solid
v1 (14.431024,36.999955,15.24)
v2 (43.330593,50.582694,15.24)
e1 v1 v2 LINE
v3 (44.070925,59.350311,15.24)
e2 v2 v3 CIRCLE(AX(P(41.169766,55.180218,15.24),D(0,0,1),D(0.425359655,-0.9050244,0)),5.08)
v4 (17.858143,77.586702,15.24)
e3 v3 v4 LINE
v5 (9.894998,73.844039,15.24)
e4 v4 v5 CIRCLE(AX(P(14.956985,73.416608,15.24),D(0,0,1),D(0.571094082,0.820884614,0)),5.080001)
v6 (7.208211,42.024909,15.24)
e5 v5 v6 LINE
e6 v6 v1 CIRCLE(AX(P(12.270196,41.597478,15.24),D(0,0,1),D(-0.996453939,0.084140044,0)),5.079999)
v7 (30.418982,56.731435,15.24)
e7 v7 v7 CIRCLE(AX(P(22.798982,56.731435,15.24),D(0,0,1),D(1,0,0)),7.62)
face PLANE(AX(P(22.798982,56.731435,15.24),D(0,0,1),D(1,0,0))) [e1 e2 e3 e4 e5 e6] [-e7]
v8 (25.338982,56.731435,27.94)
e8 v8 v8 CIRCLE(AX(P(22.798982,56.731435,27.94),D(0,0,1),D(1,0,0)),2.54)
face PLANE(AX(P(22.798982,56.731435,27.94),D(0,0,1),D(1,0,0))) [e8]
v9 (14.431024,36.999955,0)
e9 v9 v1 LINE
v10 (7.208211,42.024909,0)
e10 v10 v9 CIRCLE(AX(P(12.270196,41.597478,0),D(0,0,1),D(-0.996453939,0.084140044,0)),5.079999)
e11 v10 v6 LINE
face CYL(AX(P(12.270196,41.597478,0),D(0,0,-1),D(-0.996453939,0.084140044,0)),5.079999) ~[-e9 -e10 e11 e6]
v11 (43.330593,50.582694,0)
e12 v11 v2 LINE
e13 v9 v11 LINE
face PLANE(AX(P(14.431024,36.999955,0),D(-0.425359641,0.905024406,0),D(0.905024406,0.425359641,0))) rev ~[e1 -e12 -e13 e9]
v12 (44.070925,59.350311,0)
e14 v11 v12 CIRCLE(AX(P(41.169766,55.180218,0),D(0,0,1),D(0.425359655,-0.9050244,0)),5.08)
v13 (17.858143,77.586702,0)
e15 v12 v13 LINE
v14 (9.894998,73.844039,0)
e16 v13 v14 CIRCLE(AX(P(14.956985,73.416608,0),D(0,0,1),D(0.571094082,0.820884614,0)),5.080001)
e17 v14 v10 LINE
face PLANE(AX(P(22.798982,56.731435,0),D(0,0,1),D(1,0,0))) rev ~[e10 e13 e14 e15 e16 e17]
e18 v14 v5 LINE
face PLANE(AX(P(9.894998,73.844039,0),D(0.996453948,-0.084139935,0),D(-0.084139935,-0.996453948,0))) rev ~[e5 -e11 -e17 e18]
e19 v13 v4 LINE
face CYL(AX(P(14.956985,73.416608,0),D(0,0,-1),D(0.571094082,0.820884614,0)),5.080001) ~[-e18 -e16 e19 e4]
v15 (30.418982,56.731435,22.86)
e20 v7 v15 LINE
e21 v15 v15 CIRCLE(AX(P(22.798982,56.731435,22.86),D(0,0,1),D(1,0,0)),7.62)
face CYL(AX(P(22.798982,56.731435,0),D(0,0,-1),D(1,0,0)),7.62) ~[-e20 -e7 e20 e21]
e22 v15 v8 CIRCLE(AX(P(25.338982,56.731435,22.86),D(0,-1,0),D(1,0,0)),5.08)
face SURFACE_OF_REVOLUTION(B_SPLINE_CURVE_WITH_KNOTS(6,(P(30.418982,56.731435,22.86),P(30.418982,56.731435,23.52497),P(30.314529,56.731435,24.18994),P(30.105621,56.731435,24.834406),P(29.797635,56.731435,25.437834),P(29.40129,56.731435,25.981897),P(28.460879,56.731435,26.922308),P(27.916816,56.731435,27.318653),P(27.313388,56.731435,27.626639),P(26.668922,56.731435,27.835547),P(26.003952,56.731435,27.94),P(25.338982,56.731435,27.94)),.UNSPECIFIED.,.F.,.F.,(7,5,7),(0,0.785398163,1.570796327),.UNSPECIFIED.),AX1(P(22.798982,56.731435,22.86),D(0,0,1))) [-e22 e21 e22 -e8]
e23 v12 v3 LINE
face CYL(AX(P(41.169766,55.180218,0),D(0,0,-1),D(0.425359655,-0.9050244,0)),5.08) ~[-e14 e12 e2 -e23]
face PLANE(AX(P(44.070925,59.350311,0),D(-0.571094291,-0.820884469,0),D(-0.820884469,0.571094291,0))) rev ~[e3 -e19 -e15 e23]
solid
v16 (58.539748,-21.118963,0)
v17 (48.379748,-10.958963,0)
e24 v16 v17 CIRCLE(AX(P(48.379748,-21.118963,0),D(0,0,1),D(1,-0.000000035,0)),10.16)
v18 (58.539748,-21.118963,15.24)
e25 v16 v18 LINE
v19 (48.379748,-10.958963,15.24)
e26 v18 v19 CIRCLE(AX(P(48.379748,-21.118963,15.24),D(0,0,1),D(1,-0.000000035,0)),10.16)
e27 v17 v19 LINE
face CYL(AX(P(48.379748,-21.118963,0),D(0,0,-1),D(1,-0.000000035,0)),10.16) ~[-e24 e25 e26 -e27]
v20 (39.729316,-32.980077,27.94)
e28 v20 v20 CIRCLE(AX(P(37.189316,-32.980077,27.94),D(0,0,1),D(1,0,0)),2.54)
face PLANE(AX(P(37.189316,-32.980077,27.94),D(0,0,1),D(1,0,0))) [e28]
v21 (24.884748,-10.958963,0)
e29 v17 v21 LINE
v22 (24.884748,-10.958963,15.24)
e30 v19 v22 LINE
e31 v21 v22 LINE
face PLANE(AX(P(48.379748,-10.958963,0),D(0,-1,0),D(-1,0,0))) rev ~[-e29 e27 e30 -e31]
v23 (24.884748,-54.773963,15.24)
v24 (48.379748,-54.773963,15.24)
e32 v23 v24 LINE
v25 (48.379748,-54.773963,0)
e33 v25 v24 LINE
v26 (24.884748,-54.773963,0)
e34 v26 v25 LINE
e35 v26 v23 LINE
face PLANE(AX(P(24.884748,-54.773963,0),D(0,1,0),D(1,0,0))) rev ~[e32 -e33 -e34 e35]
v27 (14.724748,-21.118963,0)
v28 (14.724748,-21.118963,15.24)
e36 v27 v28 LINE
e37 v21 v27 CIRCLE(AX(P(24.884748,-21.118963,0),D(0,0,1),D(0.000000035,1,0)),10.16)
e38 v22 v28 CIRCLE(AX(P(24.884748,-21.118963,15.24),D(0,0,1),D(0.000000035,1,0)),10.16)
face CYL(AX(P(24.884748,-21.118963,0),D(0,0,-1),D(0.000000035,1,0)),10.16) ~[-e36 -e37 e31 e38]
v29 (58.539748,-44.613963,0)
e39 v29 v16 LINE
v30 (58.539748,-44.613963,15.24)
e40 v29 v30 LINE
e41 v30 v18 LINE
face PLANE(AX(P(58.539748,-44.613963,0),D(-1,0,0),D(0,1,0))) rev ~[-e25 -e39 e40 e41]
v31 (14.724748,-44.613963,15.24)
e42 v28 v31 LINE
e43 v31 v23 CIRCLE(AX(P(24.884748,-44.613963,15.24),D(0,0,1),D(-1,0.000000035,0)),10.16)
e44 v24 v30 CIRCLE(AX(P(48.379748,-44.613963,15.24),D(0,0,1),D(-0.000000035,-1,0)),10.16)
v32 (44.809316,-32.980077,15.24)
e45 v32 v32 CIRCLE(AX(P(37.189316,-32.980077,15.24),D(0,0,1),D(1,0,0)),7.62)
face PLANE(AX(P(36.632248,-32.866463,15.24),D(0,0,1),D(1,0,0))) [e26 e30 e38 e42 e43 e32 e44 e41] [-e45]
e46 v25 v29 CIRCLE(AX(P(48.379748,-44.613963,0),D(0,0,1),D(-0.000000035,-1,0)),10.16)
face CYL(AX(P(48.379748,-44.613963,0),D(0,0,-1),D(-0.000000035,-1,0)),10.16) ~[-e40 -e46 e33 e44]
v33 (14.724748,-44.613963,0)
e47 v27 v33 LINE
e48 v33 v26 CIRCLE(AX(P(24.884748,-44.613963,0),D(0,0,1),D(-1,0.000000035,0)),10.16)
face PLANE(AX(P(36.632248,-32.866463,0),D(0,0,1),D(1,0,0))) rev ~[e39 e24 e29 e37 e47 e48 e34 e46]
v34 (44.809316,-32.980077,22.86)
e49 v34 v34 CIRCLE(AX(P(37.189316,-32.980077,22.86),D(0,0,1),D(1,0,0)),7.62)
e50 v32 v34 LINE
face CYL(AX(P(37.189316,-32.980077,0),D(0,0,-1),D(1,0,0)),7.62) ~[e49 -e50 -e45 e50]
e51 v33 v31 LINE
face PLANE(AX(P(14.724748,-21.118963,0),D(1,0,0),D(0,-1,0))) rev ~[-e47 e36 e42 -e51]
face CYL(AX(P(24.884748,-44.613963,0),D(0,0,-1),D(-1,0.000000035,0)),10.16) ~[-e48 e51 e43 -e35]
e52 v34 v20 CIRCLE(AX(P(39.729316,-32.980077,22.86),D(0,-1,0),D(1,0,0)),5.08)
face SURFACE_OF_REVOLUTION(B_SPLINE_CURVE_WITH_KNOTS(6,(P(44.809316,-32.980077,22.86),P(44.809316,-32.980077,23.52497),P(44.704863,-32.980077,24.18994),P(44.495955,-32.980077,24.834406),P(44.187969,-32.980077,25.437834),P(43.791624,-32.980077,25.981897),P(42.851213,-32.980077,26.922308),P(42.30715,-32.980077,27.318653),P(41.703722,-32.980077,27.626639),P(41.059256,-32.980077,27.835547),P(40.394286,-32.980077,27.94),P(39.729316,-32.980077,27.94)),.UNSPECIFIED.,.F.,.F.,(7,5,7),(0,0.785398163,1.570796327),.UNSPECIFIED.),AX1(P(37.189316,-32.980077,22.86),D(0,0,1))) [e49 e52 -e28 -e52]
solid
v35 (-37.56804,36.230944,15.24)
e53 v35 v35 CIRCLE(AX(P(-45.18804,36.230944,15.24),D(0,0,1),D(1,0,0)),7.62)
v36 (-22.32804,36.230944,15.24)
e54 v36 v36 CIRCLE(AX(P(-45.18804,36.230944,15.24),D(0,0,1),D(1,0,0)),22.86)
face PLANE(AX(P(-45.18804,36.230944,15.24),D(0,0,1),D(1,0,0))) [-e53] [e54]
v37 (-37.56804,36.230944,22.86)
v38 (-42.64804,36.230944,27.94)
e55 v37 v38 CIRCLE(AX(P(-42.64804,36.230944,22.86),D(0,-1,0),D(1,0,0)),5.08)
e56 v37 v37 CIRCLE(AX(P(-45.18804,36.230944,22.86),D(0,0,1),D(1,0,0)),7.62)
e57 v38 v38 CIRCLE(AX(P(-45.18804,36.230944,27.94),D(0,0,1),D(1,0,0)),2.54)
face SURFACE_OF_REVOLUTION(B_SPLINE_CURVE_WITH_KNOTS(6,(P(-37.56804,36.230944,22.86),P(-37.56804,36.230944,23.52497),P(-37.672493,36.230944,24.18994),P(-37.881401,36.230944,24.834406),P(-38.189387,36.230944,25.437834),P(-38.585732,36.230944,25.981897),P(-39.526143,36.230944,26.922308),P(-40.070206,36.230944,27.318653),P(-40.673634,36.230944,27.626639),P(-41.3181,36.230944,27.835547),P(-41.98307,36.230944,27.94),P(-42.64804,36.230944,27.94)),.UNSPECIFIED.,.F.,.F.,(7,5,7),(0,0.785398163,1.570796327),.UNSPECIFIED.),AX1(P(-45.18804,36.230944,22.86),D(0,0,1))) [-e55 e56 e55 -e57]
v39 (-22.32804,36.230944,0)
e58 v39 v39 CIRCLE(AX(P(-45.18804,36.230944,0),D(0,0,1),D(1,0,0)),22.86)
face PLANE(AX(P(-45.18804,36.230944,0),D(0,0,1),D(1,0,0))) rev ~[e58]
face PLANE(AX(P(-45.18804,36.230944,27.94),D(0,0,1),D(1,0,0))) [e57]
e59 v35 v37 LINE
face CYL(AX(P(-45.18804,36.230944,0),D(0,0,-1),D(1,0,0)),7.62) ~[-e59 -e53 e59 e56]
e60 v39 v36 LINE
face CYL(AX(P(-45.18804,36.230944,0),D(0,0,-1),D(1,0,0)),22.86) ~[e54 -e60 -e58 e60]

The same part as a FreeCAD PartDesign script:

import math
import FreeCAD as App
import Part
import Sketcher
from FreeCAD import Vector
Q = App.Units.Quantity


def edges_at(feature, points):
    """Names of the edges that pass closest to the given points."""
    edges = feature.Shape.Edges
    near = lambda p: min(range(len(edges)), key=lambda i: edges[i].distToShape(Part.Vertex(*p))[0])
    return sorted({f"Edge{near(p) + 1}" for p in points})

doc = App.newDocument("Part")
body = doc.addObject("PartDesign::Body", "Body")

# Sketch on XY plane
sketch1 = body.newObject("Sketcher::SketchObject", "Sketch")
sketch1.AttachmentSupport = (doc.getObject("XY_Plane"), [""])
sketch1.MapMode = "FlatFace"
sketch1.addGeometry(Part.Circle(Vector(-45, 36, 0), Vector(0, 0, 1), 23), False)
sketch1.addGeometry(Part.Circle(Vector(-45, 36, 0), Vector(0, 0, 1), 8), False)
sketch1.addConstraint(Sketcher.Constraint("Coincident", 1, 3, 0, 3))
sketch1.addConstraint(Sketcher.Constraint("Diameter", 0, Q("1.8 in")))
sketch1.addConstraint(Sketcher.Constraint("Diameter", 1, Q("0.6 in")))
sketch1.addConstraint(Sketcher.Constraint("DistanceX", 0, 3, -1, 1, Q("45.18804 mm")))
sketch1.addConstraint(Sketcher.Constraint("DistanceY", -1, 1, 0, 3, Q("36.230944 mm")))
pad1 = body.newObject("PartDesign::Pad", "Pad")
pad1.Profile = sketch1
pad1.Length = Q("0.6 in")

# Sketch on XY plane
sketch2 = body.newObject("Sketcher::SketchObject", "Sketch001")
sketch2.AttachmentSupport = (doc.getObject("XY_Plane"), [""])
sketch2.MapMode = "FlatFace"
sketch2.addGeometry(Part.Circle(Vector(-45, 36, 0), Vector(0, 0, 1), 8), False)
sketch2.addConstraint(Sketcher.Constraint("Diameter", 0, Q("0.6 in")))
sketch2.addConstraint(Sketcher.Constraint("DistanceX", 0, 3, -1, 1, Q("45.18804 mm")))
sketch2.addConstraint(Sketcher.Constraint("DistanceY", -1, 1, 0, 3, Q("36.230944 mm")))
pad2 = body.newObject("PartDesign::Pad", "Pad001")
pad2.Profile = sketch2
pad2.Length = Q("1.1 in")
doc.recompute()

fillet = body.newObject("PartDesign::Fillet", "Fillet")
fillet.Base = (pad2, edges_at(pad2, [(-52.808, 36.231, 27.94)]))
fillet.Radius = Q("0.2 in")
body2 = doc.addObject("PartDesign::Body", "Body001")

# Sketch on XY plane
sketch3 = body2.newObject("Sketcher::SketchObject", "Sketch002")
sketch3.AttachmentSupport = (doc.getObject("XY_Plane001"), [""])
sketch3.MapMode = "FlatFace"
sketch3.addGeometry(Part.LineSegment(Vector(48, -11, 0), Vector(25, -11, 0)), False)
sketch3.addGeometry(Part.ArcOfCircle(Part.Circle(Vector(25, -21, 0), Vector(0, 0, 1), 10), math.radians(90), math.radians(180)), False)
sketch3.addGeometry(Part.LineSegment(Vector(15, -21, 0), Vector(15, -45, 0)), False)
sketch3.addGeometry(Part.ArcOfCircle(Part.Circle(Vector(25, -45, 0), Vector(0, 0, 1), 10), math.radians(180), math.radians(270)), False)
sketch3.addGeometry(Part.LineSegment(Vector(25, -55, 0), Vector(48, -55, 0)), False)
sketch3.addGeometry(Part.ArcOfCircle(Part.Circle(Vector(48, -45, 0), Vector(0, 0, 1), 10), math.radians(-90), math.radians(0)), False)
sketch3.addGeometry(Part.LineSegment(Vector(59, -45, 0), Vector(59, -21, 0)), False)
sketch3.addGeometry(Part.ArcOfCircle(Part.Circle(Vector(48, -21, 0), Vector(0, 0, 1), 10), math.radians(0), math.radians(90)), False)
sketch3.addGeometry(Part.Circle(Vector(37, -33, 0), Vector(0, 0, 1), 8), False)
sketch3.addConstraint(Sketcher.Constraint("Tangent", 0, 2, 1, 1))
sketch3.addConstraint(Sketcher.Constraint("Tangent", 1, 2, 2, 1))
sketch3.addConstraint(Sketcher.Constraint("Tangent", 2, 2, 3, 1))
sketch3.addConstraint(Sketcher.Constraint("Tangent", 3, 2, 4, 1))
sketch3.addConstraint(Sketcher.Constraint("Tangent", 4, 2, 5, 1))
sketch3.addConstraint(Sketcher.Constraint("Tangent", 5, 2, 6, 1))
sketch3.addConstraint(Sketcher.Constraint("Tangent", 6, 2, 7, 1))
sketch3.addConstraint(Sketcher.Constraint("Tangent", 7, 2, 0, 1))
sketch3.addConstraint(Sketcher.Constraint("Horizontal", 0))
sketch3.addConstraint(Sketcher.Constraint("Vertical", 2))
sketch3.addConstraint(Sketcher.Constraint("Horizontal", 4))
sketch3.addConstraint(Sketcher.Constraint("Vertical", 6))
sketch3.addConstraint(Sketcher.Constraint("Equal", 1, 3))
sketch3.addConstraint(Sketcher.Constraint("Equal", 3, 5))
sketch3.addConstraint(Sketcher.Constraint("Equal", 5, 7))
sketch3.addConstraint(Sketcher.Constraint("Equal", 4, 2))
sketch3.addConstraint(Sketcher.Constraint("Diameter", 8, Q("0.6 in")))
sketch3.addConstraint(Sketcher.Constraint("Radius", 1, Q("0.4 in")))
sketch3.addConstraint(Sketcher.Constraint("DistanceX", 0, 2, 0, 1, Q("0.925 in")))
sketch3.addConstraint(Sketcher.Constraint("DistanceX", -1, 1, 5, 3, Q("48.379748 mm")))
sketch3.addConstraint(Sketcher.Constraint("DistanceX", 3, 3, 8, 3, Q("12.304568 mm")))
sketch3.addConstraint(Sketcher.Constraint("DistanceY", 1, 3, -1, 1, Q("21.118963 mm")))
sketch3.addConstraint(Sketcher.Constraint("DistanceY", 8, 3, -1, 1, Q("32.980077 mm")))
pad3 = body2.newObject("PartDesign::Pad", "Pad002")
pad3.Profile = sketch3
pad3.Length = Q("0.6 in")

# Sketch on XY plane
sketch4 = body2.newObject("Sketcher::SketchObject", "Sketch003")
sketch4.AttachmentSupport = (doc.getObject("XY_Plane001"), [""])
sketch4.MapMode = "FlatFace"
sketch4.addGeometry(Part.Circle(Vector(37, -33, 0), Vector(0, 0, 1), 8), False)
sketch4.addConstraint(Sketcher.Constraint("Diameter", 0, Q("0.6 in")))
sketch4.addConstraint(Sketcher.Constraint("DistanceX", -1, 1, 0, 3, Q("37.189316 mm")))
sketch4.addConstraint(Sketcher.Constraint("DistanceY", 0, 3, -1, 1, Q("32.980077 mm")))
pad4 = body2.newObject("PartDesign::Pad", "Pad003")
pad4.Profile = sketch4
pad4.Length = Q("1.1 in")
doc.recompute()

fillet2 = body2.newObject("PartDesign::Fillet", "Fillet001")
fillet2.Base = (pad4, edges_at(pad4, [(29.569, -32.98, 27.94)]))
fillet2.Radius = Q("0.2 in")
body3 = doc.addObject("PartDesign::Body", "Body002")

# Sketch on XY plane
sketch5 = body3.newObject("Sketcher::SketchObject", "Sketch004")
sketch5.AttachmentSupport = (doc.getObject("XY_Plane002"), [""])
sketch5.MapMode = "FlatFace"
sketch5.addGeometry(Part.LineSegment(Vector(14, 37, 0), Vector(43, 51, 0)), False)
sketch5.addGeometry(Part.ArcOfCircle(Part.Circle(Vector(41, 55, 0), Vector(0, 0, 1), 5), math.radians(-65), math.radians(55)), False)
sketch5.addGeometry(Part.LineSegment(Vector(44, 59, 0), Vector(18, 78, 0)), False)
sketch5.addGeometry(Part.ArcOfCircle(Part.Circle(Vector(15, 73, 0), Vector(0, 0, 1), 5), math.radians(55), math.radians(175)), False)
sketch5.addGeometry(Part.LineSegment(Vector(10, 74, 0), Vector(7, 42, 0)), False)
sketch5.addGeometry(Part.ArcOfCircle(Part.Circle(Vector(12, 42, 0), Vector(0, 0, 1), 5), math.radians(175), math.radians(295)), False)
sketch5.addGeometry(Part.Circle(Vector(23, 57, 0), Vector(0, 0, 1), 8), False)
sketch5.addConstraint(Sketcher.Constraint("Tangent", 0, 2, 1, 1))
sketch5.addConstraint(Sketcher.Constraint("Tangent", 1, 2, 2, 1))
sketch5.addConstraint(Sketcher.Constraint("Tangent", 2, 2, 3, 1))
sketch5.addConstraint(Sketcher.Constraint("Tangent", 3, 2, 4, 1))
sketch5.addConstraint(Sketcher.Constraint("Tangent", 4, 2, 5, 1))
sketch5.addConstraint(Sketcher.Constraint("Tangent", 5, 2, 0, 1))
sketch5.addConstraint(Sketcher.Constraint("Equal", 1, 3))
sketch5.addConstraint(Sketcher.Constraint("Equal", 3, 5))
sketch5.addConstraint(Sketcher.Constraint("Equal", 0, 2))
sketch5.addConstraint(Sketcher.Constraint("Equal", 2, 4))
sketch5.addConstraint(Sketcher.Constraint("Diameter", 6, Q("0.6 in")))
sketch5.addConstraint(Sketcher.Constraint("Radius", 1, Q("0.2 in")))
sketch5.addConstraint(Sketcher.Constraint("DistanceX", -1, 1, 3, 2, Q("9.894998 mm")))
sketch5.addConstraint(Sketcher.Constraint("DistanceX", 3, 2, 5, 3, Q("2.375198 mm")))
sketch5.addConstraint(Sketcher.Constraint("DistanceY", 4, 2, 3, 3, Q("31.391699 mm")))
sketch5.addConstraint(Sketcher.Constraint("DistanceX", -1, 1, 6, 3, Q("22.798982 mm")))
sketch5.addConstraint(Sketcher.Constraint("DistanceY", -1, 1, 1, 2, Q("59.350311 mm")))
sketch5.addConstraint(Sketcher.Constraint("DistanceY", 0, 2, 6, 3, Q("6.148741 mm")))
pad5 = body3.newObject("PartDesign::Pad", "Pad004")
pad5.Profile = sketch5
pad5.Length = Q("0.6 in")

# Sketch on XY plane
sketch6 = body3.newObject("Sketcher::SketchObject", "Sketch005")
sketch6.AttachmentSupport = (doc.getObject("XY_Plane002"), [""])
sketch6.MapMode = "FlatFace"
sketch6.addGeometry(Part.Circle(Vector(23, 57, 0), Vector(0, 0, 1), 8), False)
sketch6.addConstraint(Sketcher.Constraint("Diameter", 0, Q("0.6 in")))
sketch6.addConstraint(Sketcher.Constraint("DistanceX", -1, 1, 0, 3, Q("22.798982 mm")))
sketch6.addConstraint(Sketcher.Constraint("DistanceY", -1, 1, 0, 3, Q("56.731435 mm")))
pad6 = body3.newObject("PartDesign::Pad", "Pad005")
pad6.Profile = sketch6
pad6.Length = Q("1.1 in")
doc.recompute()

fillet3 = body3.newObject("PartDesign::Fillet", "Fillet002")
fillet3.Base = (pad6, edges_at(pad6, [(15.179, 56.731, 27.94)]))
fillet3.Radius = Q("0.2 in")

doc.recompute()
